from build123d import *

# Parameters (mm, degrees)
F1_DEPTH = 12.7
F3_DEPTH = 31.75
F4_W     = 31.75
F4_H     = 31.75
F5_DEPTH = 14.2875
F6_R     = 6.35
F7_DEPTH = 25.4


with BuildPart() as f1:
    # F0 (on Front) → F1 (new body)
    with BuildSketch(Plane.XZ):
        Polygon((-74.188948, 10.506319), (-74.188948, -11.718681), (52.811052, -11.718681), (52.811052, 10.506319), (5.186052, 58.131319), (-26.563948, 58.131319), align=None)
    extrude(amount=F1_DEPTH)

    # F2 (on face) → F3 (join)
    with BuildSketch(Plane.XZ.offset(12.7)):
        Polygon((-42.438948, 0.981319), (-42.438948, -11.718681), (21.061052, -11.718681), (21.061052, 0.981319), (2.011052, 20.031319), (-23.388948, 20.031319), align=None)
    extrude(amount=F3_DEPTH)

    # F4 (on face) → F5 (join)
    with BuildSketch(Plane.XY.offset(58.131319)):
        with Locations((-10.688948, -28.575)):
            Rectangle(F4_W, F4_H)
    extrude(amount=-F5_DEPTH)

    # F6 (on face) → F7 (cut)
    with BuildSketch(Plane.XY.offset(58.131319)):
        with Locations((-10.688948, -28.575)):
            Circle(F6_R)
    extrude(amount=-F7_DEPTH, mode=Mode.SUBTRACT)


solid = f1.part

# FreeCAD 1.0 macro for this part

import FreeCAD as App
import Part
import Sketcher

V = App.Vector
Q = App.Units.Quantity


def add_polygon(sketch, points):
    """Adds a closed chain of lines whose ends are joined by coincident constraints."""
    first, n = sketch.GeometryCount, len(points)
    for a, b in zip(points, points[1:] + points[:1]):
        sketch.addGeometry(Part.LineSegment(App.Vector(*a, 0), App.Vector(*b, 0)), False)
    for i in range(n):
        sketch.addConstraint(Sketcher.Constraint("Coincident", first + i, 2, first + (i + 1) % n, 1))

doc = App.newDocument("Part")
body = doc.addObject("PartDesign::Body", "Body")

sketch1 = body.newObject("Sketcher::SketchObject", "Sketch")
sketch1.AttachmentSupport = (doc.getObject("XZ_Plane"), [""])
sketch1.MapMode = "FlatFace"
add_polygon(sketch1, [(-74, 11), (-74, -12), (53, -12), (53, 11), (5, 58), (-27, 58)])
sketch1.addConstraint(Sketcher.Constraint("Vertical", 0))
sketch1.addConstraint(Sketcher.Constraint("Horizontal", 1))
sketch1.addConstraint(Sketcher.Constraint("Vertical", 2))
sketch1.addConstraint(Sketcher.Constraint("Horizontal", 4))
sketch1.addConstraint(Sketcher.Constraint("Perpendicular", 3, 5))
sketch1.addConstraint(Sketcher.Constraint("Horizontal", 2, 2, 5, 2))
sketch1.addConstraint(Sketcher.Constraint("Equal", 3, 5))
sketch1.addConstraint(Sketcher.Constraint("DistanceX", 1, 1, 1, 2, Q("5 in")))
sketch1.addConstraint(Sketcher.Constraint("DistanceX", 4, 2, 4, 1, Q("1.25 in")))
sketch1.addConstraint(Sketcher.Constraint("DistanceY", 0, 2, 0, 1, Q("0.875 in")))
sketch1.addConstraint(Sketcher.Constraint("DistanceY", 0, 2, -1, 1, 11.718681))
sketch1.addConstraint(Sketcher.Constraint("DistanceX", -1, 1, 1, 2, 52.811052))
pad1 = body.newObject("PartDesign::Pad", "Pad")
pad1.Profile = sketch1
pad1.Length = Q("0.5 in")

sketch2 = body.newObject("Sketcher::SketchObject", "Sketch001")
sketch2.AttachmentSupport = (doc.getObject("XZ_Plane"), [""])
sketch2.MapMode = "FlatFace"
sketch2.AttachmentOffset = App.Placement(V(0, 0, 0.5 * 25.4), App.Rotation())
add_polygon(sketch2, [(-42, 1), (-42, -12), (21, -12), (21, 1), (2, 20), (-23, 20)])
sketch2.addConstraint(Sketcher.Constraint("Vertical", 0))
sketch2.addConstraint(Sketcher.Constraint("Horizontal", 1))
sketch2.addConstraint(Sketcher.Constraint("Vertical", 2))
sketch2.addConstraint(Sketcher.Constraint("Horizontal", 4))
sketch2.addConstraint(Sketcher.Constraint("Perpendicular", 3, 5))
sketch2.addConstraint(Sketcher.Constraint("Horizontal", 2, 2, 5, 2))
sketch2.addConstraint(Sketcher.Constraint("Equal", 3, 5))
sketch2.addConstraint(Sketcher.Constraint("DistanceX", 4, 2, 4, 1, Q("1 in")))
sketch2.addConstraint(Sketcher.Constraint("DistanceX", 1, 1, 1, 2, Q("2.5 in")))
sketch2.addConstraint(Sketcher.Constraint("DistanceY", 0, 2, 0, 1, Q("0.5 in")))
sketch2.addConstraint(Sketcher.Constraint("DistanceX", 0, 2, -1, 1, 42.438948))
sketch2.addConstraint(Sketcher.Constraint("DistanceY", 0, 2, -1, 1, 11.718681))
pad2 = body.newObject("PartDesign::Pad", "Pad001")
pad2.Profile = sketch2
pad2.Length = Q("1.25 in")

sketch3 = body.newObject("Sketcher::SketchObject", "Sketch002")
sketch3.AttachmentSupport = (doc.getObject("XY_Plane"), [""])
sketch3.MapMode = "FlatFace"
sketch3.AttachmentOffset = App.Placement(V(0, 0, 58.131319), App.Rotation())
add_polygon(sketch3, [(-27, -13), (-27, -44), (5, -44), (5, -13)])
sketch3.addConstraint(Sketcher.Constraint("Vertical", 0))
sketch3.addConstraint(Sketcher.Constraint("Horizontal", 1))
sketch3.addConstraint(Sketcher.Constraint("Vertical", 2))
sketch3.addConstraint(Sketcher.Constraint("Horizontal", 3))
sketch3.addConstraint(Sketcher.Constraint("Equal", 3, 0))
sketch3.addConstraint(Sketcher.Constraint("DistanceX", 1, 1, 1, 2, Q("1.25 in")))
sketch3.addConstraint(Sketcher.Constraint("DistanceY", 2, 2, -1, 1, Q("0.5 in")))
sketch3.addConstraint(Sketcher.Constraint("DistanceX", 0, 2, -1, 1, 26.563948))
pad3 = body.newObject("PartDesign::Pad", "Pad002")
pad3.Profile = sketch3
pad3.Length = Q("0.5625 in")
pad3.Reversed = True

sketch4 = body.newObject("Sketcher::SketchObject", "Sketch003")
sketch4.AttachmentSupport = (doc.getObject("XY_Plane"), [""])
sketch4.MapMode = "FlatFace"
sketch4.AttachmentOffset = App.Placement(V(0, 0, 58.131319), App.Rotation())
sketch4.addGeometry(Part.Circle(V(-11, -29, 0), V(0, 0, 1), 6), False)
sketch4.addConstraint(Sketcher.Constraint("Diameter", 0, Q("0.5 in")))
sketch4.addConstraint(Sketcher.Constraint("DistanceY", 0, 3, -1, 1, Q("1.125 in")))
sketch4.addConstraint(Sketcher.Constraint("DistanceX", 0, 3, -1, 1, 10.688948))
pocket1 = body.newObject("PartDesign::Pocket", "Pocket")
pocket1.Profile = sketch4
pocket1.Length = Q("1 in")

doc.recompute()
